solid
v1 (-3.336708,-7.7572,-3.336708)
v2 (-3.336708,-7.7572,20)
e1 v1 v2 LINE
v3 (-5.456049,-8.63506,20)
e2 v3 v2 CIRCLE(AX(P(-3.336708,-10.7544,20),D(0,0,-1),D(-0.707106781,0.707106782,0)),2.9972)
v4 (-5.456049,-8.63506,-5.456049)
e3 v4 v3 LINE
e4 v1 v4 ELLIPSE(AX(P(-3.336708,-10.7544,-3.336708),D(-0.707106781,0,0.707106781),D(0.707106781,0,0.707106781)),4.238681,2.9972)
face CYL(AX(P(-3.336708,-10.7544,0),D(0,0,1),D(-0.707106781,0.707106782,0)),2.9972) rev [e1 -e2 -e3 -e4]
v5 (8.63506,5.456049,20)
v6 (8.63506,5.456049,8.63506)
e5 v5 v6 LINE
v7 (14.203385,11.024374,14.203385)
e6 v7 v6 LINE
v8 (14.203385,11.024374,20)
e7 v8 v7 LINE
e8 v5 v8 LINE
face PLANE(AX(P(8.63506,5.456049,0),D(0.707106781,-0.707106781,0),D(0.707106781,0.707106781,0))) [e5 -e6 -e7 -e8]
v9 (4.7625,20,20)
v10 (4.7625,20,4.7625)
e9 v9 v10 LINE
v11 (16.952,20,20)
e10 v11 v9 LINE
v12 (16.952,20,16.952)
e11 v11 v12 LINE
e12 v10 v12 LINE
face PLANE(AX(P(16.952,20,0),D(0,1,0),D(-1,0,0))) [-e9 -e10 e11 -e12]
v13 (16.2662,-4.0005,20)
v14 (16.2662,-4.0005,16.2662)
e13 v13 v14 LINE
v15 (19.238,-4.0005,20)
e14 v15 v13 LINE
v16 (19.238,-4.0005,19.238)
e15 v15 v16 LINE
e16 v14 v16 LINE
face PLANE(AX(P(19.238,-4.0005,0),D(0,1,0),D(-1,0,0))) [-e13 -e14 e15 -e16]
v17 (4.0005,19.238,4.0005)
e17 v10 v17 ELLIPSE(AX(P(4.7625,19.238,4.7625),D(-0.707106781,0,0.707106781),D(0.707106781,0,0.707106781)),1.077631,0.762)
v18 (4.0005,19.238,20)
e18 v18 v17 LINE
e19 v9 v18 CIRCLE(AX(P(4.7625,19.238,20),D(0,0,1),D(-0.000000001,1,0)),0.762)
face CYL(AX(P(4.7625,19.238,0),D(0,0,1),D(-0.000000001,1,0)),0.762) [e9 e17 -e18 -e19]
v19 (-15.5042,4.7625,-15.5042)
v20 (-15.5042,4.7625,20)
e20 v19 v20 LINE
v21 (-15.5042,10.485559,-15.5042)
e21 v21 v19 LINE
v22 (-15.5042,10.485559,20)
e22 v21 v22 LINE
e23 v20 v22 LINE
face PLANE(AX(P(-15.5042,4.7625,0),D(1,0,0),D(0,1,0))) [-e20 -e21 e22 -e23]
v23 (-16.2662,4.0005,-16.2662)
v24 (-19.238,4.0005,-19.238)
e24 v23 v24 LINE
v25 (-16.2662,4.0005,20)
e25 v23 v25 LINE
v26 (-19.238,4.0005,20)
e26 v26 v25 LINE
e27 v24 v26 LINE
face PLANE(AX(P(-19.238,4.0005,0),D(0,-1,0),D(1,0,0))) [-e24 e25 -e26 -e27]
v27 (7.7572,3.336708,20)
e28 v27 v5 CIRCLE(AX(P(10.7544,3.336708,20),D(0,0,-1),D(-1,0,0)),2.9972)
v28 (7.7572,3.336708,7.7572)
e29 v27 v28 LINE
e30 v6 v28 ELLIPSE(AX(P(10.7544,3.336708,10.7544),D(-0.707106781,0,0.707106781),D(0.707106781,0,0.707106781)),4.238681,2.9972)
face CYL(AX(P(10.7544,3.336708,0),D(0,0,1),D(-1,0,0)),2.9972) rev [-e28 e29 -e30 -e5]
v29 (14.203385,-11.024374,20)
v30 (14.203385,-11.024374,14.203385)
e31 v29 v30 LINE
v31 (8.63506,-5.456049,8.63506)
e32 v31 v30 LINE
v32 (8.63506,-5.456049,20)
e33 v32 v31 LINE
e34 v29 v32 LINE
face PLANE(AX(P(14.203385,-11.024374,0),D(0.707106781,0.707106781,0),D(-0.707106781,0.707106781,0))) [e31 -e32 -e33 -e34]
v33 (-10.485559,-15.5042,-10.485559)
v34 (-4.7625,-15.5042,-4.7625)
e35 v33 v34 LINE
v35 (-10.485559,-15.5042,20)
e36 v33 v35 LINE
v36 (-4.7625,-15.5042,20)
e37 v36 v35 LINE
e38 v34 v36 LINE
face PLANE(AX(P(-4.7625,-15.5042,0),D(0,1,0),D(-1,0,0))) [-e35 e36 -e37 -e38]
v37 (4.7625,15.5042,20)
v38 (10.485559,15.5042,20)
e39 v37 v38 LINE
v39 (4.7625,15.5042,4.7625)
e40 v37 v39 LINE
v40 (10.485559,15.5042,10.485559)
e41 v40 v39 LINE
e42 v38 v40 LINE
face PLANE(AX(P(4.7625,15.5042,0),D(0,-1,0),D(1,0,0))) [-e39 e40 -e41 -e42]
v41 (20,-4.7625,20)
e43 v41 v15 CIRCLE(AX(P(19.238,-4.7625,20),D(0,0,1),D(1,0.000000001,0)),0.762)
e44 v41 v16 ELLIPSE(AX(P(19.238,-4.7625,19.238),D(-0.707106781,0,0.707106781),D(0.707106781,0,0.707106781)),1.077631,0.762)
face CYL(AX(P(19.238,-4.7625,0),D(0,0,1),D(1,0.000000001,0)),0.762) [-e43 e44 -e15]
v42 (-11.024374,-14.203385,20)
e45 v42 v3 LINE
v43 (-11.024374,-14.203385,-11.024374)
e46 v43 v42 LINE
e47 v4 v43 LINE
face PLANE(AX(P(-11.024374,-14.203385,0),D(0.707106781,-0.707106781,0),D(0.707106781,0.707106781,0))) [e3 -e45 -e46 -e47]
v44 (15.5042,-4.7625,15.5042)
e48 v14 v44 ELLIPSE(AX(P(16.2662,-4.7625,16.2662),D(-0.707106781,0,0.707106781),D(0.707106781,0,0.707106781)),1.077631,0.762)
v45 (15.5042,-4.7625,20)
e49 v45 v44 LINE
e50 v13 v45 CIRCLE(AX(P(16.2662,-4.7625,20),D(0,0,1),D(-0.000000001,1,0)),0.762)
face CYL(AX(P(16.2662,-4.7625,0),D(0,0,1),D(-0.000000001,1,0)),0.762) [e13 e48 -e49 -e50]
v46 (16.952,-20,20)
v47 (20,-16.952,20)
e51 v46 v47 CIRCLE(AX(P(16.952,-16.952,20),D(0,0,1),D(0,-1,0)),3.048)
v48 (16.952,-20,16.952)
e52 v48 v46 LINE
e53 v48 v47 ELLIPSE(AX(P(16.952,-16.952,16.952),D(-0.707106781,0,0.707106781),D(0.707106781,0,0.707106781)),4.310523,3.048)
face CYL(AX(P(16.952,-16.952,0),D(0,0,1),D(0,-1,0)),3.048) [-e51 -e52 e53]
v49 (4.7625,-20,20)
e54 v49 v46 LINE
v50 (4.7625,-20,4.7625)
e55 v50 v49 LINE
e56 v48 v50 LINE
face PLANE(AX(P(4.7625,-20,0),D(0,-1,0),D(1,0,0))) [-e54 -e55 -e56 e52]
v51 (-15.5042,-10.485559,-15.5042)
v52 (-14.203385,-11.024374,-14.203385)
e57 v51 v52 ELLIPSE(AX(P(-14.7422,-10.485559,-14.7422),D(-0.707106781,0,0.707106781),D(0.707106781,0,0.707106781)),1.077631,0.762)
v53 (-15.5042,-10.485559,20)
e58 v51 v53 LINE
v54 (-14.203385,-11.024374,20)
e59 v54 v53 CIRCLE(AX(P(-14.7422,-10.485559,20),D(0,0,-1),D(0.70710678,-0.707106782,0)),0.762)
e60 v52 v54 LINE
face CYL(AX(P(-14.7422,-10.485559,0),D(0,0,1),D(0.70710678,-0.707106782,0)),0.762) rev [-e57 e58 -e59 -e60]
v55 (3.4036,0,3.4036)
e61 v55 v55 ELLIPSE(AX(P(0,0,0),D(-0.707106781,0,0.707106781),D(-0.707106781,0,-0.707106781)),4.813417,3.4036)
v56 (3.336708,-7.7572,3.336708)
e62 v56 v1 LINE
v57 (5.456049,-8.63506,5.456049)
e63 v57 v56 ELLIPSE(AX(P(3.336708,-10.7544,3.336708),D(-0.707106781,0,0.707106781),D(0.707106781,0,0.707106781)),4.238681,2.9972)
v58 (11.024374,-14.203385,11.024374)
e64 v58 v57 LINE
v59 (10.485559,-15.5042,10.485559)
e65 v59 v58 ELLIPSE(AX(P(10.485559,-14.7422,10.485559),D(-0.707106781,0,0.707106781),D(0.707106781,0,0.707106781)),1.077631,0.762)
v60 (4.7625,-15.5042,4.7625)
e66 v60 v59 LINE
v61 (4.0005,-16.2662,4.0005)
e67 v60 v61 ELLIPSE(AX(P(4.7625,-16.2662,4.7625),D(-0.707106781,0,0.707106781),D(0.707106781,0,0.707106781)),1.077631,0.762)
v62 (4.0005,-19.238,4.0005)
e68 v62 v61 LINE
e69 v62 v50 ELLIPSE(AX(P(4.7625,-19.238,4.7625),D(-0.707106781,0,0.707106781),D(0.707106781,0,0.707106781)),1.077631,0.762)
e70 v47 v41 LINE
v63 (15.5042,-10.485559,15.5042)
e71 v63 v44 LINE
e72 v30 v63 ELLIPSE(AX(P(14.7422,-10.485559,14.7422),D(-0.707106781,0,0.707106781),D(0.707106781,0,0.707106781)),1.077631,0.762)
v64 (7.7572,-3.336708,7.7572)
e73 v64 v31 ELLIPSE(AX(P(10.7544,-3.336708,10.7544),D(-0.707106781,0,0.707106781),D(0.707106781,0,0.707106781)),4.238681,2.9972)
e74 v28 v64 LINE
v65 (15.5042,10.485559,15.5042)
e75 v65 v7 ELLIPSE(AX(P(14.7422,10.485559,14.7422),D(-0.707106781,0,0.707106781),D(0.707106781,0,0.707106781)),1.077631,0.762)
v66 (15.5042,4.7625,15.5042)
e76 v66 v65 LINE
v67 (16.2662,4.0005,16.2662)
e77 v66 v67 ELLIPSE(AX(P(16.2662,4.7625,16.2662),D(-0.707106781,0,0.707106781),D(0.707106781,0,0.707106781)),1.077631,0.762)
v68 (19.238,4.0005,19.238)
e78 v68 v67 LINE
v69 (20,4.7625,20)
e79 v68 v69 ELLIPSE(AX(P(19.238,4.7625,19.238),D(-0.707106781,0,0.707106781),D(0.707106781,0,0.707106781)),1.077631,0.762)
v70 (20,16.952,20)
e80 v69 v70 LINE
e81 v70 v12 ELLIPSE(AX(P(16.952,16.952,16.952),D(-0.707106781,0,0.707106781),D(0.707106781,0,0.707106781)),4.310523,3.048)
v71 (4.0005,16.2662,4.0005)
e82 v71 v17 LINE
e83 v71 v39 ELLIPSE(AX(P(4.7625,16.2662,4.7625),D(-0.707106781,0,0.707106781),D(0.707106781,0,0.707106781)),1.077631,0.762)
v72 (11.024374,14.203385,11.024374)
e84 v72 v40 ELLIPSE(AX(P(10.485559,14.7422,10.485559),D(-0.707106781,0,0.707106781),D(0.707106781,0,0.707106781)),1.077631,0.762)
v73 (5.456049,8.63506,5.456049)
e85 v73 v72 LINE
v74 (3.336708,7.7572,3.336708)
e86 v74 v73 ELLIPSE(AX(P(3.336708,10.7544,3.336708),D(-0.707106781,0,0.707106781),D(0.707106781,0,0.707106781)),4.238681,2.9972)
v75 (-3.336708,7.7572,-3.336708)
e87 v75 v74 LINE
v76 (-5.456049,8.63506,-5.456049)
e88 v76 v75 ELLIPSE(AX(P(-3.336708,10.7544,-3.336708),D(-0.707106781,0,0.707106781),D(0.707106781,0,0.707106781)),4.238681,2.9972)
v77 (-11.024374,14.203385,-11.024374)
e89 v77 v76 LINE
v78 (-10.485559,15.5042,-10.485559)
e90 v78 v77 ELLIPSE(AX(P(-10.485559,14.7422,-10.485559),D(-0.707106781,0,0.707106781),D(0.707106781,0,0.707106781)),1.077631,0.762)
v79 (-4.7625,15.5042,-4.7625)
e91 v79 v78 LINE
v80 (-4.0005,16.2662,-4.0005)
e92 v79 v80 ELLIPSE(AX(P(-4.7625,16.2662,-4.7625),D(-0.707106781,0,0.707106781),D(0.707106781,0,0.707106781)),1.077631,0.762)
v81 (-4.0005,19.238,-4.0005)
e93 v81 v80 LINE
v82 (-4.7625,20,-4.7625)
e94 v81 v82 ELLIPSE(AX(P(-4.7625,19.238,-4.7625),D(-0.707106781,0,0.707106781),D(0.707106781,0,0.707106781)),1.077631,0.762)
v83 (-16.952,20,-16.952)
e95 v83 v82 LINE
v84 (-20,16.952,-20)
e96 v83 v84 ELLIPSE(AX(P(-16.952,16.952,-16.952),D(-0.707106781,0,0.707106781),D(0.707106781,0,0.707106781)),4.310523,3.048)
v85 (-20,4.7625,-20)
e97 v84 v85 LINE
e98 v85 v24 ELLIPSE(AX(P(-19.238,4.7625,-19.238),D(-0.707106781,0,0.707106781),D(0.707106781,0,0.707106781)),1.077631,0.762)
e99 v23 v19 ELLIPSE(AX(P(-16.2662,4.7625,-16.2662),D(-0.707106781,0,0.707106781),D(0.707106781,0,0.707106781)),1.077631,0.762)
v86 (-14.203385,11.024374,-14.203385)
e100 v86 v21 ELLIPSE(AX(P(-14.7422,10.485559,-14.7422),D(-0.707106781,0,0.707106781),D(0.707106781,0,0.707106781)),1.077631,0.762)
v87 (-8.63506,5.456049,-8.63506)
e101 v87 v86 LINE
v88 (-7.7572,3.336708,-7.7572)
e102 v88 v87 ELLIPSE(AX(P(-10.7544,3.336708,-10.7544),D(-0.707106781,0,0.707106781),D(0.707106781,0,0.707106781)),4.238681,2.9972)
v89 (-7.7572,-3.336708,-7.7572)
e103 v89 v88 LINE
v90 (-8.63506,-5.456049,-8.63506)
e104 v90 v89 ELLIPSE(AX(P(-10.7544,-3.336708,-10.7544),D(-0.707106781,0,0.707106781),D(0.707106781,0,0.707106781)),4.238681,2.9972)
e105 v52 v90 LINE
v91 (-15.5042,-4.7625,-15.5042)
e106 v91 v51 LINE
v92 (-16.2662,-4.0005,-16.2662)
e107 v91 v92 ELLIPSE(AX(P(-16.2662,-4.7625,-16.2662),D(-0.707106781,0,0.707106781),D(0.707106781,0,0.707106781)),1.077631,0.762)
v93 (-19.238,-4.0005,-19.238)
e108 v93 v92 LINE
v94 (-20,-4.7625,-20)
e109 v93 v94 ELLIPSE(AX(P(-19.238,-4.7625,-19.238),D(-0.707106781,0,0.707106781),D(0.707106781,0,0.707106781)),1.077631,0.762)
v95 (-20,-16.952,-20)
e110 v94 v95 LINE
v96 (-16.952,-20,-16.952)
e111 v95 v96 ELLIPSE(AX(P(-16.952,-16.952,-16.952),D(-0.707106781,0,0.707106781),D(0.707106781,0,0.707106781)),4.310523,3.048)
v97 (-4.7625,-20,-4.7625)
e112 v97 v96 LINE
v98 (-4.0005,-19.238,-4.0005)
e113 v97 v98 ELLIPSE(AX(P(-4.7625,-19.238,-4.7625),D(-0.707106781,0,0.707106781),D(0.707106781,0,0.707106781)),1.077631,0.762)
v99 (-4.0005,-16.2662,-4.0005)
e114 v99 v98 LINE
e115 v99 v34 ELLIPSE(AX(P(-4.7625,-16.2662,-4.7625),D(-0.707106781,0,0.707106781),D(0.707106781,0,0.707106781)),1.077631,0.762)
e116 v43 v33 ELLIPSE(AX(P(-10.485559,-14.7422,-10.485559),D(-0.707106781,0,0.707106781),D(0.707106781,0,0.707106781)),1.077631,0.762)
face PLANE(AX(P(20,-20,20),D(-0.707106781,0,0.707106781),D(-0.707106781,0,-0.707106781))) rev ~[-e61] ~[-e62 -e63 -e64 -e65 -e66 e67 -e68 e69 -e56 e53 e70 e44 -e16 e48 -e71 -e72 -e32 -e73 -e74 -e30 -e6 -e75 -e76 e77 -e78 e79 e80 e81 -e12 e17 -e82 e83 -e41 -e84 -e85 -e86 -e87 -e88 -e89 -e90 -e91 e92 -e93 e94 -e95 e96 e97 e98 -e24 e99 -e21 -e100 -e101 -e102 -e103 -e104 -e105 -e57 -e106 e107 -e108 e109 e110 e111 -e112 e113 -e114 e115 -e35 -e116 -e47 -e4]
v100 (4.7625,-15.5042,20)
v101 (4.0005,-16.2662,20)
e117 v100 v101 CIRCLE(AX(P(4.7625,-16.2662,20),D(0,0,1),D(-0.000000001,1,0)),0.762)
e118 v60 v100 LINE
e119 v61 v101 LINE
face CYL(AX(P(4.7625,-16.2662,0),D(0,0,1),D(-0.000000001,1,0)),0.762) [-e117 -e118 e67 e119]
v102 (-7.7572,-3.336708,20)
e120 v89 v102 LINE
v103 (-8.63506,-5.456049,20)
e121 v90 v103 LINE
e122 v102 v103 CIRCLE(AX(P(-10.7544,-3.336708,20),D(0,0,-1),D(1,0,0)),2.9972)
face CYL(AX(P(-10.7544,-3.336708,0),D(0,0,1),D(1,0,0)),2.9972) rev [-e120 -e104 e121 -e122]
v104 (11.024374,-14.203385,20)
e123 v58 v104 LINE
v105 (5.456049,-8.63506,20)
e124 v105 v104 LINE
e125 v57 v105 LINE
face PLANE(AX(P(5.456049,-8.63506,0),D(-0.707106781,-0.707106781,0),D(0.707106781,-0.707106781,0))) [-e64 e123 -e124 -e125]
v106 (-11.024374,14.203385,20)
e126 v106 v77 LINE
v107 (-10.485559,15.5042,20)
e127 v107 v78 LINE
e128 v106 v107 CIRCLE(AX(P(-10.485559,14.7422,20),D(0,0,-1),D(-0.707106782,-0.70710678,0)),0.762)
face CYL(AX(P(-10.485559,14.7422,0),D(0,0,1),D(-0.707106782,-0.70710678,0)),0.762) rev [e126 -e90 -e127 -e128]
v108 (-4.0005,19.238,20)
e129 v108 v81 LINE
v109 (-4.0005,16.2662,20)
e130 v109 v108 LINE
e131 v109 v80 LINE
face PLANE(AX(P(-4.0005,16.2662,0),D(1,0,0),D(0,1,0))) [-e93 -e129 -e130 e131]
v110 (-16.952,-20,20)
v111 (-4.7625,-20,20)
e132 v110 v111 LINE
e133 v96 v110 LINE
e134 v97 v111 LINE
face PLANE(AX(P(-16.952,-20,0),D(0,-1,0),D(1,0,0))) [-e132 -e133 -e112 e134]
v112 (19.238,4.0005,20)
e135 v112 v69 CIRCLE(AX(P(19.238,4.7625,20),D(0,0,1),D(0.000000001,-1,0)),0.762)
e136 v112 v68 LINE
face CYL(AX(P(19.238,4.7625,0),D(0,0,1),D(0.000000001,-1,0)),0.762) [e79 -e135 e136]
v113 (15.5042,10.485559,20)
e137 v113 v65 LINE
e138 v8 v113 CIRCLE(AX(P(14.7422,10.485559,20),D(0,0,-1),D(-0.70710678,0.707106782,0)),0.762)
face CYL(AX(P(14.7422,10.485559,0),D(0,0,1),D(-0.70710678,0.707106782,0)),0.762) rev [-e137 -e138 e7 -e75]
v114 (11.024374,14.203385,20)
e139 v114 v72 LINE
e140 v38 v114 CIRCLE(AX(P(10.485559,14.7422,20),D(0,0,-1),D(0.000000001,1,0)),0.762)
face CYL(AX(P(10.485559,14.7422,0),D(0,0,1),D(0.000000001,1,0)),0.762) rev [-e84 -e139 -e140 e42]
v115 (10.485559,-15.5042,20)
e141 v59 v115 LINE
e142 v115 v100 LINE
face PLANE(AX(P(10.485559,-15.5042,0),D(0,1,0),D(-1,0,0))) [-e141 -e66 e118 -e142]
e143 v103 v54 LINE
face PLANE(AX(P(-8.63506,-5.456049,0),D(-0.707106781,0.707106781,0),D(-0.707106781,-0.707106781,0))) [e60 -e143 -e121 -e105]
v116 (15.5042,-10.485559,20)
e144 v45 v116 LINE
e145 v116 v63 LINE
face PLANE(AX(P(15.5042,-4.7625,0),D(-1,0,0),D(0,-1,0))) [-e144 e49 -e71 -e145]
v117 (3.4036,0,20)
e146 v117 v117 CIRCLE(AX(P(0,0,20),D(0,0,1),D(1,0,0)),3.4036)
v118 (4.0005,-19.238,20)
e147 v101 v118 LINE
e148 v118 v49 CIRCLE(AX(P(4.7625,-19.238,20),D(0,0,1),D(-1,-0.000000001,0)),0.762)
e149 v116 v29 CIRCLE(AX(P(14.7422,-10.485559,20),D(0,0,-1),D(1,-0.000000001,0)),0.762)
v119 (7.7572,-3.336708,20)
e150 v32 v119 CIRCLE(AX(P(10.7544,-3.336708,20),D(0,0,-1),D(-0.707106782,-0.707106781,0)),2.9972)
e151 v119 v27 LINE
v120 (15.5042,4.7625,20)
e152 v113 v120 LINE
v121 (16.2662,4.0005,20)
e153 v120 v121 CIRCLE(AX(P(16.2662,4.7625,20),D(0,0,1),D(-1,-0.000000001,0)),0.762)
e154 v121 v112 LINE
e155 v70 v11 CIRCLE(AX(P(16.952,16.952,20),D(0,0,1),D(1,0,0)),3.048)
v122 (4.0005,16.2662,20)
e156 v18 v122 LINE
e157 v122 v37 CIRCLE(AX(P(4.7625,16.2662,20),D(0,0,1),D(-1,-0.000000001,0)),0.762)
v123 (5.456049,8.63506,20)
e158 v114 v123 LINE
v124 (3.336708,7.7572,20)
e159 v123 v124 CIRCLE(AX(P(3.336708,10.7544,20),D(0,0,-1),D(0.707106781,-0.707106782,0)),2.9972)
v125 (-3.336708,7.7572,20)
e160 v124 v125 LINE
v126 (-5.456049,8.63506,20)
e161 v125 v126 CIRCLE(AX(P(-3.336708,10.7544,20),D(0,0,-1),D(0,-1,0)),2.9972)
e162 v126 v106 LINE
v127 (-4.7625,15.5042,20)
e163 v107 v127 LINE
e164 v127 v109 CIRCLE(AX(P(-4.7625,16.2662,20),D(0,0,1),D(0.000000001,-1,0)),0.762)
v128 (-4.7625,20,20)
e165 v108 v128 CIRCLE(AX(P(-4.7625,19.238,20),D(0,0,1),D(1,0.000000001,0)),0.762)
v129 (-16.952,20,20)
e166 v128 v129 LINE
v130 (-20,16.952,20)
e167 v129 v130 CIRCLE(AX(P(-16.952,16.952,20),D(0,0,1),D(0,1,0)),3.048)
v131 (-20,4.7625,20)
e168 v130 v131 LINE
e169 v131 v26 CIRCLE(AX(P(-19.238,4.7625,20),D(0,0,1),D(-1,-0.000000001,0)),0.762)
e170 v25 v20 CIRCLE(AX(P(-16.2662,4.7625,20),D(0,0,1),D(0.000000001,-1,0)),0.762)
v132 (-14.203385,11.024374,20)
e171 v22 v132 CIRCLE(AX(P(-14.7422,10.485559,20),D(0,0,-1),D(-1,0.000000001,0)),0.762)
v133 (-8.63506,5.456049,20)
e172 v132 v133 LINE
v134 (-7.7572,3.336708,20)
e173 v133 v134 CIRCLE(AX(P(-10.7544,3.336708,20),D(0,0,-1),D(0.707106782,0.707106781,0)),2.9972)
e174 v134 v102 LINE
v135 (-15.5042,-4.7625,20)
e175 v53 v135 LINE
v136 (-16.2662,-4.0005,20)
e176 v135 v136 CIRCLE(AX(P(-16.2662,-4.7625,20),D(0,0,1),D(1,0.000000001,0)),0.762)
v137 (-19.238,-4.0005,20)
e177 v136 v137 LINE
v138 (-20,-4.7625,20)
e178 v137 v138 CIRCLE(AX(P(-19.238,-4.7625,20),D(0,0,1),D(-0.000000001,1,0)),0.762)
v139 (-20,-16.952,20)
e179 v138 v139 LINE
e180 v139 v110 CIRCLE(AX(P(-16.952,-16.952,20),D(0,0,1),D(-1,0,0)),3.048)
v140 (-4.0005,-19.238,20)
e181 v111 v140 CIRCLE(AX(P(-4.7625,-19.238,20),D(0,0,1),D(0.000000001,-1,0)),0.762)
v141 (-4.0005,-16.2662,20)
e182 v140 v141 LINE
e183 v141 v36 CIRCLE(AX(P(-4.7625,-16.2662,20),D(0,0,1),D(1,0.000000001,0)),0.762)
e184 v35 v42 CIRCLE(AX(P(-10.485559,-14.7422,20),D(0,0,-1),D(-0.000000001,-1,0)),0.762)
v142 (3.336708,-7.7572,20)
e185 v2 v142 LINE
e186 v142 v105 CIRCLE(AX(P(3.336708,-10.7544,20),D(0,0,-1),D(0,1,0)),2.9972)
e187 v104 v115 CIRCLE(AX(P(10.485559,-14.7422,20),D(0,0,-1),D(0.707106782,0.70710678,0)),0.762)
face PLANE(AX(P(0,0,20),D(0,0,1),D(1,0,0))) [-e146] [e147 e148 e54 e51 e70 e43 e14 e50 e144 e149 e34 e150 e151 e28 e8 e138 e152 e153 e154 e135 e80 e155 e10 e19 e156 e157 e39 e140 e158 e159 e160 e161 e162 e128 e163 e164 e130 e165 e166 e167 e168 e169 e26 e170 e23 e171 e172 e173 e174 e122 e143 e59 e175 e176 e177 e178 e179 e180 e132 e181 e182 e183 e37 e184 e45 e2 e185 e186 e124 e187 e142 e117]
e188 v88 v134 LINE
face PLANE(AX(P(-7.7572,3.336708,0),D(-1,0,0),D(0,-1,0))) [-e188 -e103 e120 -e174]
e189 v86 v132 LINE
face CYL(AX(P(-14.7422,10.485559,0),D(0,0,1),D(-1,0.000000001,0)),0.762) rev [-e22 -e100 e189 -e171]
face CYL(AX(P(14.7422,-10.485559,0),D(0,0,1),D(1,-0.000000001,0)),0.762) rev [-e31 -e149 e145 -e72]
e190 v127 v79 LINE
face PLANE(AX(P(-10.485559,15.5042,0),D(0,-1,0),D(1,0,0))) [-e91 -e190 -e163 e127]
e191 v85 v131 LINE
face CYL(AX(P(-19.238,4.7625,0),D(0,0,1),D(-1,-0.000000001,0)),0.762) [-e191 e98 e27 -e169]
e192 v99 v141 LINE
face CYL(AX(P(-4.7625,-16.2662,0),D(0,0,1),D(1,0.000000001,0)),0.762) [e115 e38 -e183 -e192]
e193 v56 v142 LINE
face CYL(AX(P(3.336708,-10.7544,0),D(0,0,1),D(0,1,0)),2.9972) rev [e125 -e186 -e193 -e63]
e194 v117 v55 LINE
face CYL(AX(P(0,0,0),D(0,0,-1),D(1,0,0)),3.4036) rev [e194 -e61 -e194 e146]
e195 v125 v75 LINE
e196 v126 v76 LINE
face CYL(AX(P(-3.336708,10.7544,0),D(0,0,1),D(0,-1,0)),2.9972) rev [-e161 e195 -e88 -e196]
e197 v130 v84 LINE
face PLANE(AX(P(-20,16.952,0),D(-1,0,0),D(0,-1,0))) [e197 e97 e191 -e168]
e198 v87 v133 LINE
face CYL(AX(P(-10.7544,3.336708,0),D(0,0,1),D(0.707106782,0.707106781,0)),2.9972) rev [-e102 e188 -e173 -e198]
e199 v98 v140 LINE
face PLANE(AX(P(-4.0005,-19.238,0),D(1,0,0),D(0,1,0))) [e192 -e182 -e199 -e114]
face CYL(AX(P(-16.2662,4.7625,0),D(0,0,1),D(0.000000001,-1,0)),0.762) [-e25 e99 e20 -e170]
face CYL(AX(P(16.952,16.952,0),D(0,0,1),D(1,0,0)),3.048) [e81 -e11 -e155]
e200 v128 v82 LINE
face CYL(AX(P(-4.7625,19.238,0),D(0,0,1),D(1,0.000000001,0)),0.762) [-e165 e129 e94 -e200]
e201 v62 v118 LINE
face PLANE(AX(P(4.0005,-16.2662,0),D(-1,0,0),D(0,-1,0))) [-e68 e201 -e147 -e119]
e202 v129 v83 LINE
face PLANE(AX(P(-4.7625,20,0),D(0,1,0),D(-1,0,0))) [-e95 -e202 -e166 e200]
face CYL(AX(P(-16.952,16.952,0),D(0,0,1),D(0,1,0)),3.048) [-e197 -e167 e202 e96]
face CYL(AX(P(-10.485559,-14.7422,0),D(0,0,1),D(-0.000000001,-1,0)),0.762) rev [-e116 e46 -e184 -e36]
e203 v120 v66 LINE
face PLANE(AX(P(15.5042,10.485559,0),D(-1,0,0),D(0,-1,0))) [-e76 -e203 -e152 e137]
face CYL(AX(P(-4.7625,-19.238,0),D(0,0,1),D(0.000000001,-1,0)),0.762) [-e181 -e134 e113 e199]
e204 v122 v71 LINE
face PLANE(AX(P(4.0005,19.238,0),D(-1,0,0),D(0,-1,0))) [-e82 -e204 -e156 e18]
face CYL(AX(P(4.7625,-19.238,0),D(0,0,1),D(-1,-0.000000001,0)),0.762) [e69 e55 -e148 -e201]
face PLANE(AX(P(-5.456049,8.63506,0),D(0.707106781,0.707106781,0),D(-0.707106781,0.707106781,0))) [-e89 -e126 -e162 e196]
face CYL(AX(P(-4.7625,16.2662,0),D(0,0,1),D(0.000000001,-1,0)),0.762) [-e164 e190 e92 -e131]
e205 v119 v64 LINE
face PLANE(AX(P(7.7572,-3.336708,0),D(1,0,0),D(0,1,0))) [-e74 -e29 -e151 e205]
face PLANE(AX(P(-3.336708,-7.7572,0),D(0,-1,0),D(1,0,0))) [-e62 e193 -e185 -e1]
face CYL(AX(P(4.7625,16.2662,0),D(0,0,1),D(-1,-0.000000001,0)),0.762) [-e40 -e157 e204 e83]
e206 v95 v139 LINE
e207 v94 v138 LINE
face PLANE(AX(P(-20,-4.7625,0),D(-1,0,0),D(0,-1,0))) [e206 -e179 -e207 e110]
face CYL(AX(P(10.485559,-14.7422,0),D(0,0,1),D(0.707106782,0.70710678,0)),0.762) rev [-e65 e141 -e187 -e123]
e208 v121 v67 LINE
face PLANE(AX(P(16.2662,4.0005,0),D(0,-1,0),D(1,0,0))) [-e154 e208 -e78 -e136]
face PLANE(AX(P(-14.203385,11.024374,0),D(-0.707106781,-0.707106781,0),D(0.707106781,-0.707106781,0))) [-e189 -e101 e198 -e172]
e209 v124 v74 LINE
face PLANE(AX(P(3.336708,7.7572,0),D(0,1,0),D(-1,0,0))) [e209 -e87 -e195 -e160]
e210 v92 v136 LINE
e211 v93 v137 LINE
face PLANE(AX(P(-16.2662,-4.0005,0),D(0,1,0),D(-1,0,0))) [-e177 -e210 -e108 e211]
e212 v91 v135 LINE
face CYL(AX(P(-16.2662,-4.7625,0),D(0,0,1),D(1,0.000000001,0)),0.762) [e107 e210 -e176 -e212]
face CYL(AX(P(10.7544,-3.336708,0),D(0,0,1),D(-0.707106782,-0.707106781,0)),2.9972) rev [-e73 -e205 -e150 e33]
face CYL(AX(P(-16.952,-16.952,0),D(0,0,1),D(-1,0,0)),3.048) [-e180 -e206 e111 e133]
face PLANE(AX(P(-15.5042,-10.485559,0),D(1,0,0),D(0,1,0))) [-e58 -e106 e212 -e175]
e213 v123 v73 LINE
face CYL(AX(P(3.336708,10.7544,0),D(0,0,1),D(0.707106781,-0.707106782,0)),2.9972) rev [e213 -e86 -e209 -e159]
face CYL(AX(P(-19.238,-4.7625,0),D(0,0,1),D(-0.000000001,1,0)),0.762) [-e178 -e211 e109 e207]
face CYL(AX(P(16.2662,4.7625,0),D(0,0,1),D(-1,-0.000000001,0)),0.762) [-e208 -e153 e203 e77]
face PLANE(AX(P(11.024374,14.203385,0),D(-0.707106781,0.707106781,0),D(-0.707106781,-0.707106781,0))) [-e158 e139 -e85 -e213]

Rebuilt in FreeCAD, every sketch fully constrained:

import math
import FreeCAD as App
import Part
import Sketcher

V = App.Vector
Q = App.Units.Quantity

doc = App.newDocument("Part")
body = doc.addObject("PartDesign::Body", "Body")

# Sketch on XY plane
sketch1 = doc.addObject("Sketcher::SketchObject", "Sketch")
body.addObject(sketch1)
sketch1.AttachmentSupport = (doc.XY_Plane, [""])
sketch1.MapMode = "FlatFace"
sketch1.addGeometry(Part.LineSegment(V(-20, 16.952, 0), V(-20, 4.7625, 0)), False)
sketch1.addGeometry(Part.ArcOfCircle(Part.Circle(V(-19.238, 4.7625, 0), V(0, 0, 1), 0.762), math.radians(-180), math.radians(-90)), False)
sketch1.addGeometry(Part.LineSegment(V(-19.238, 4.0005, 0), V(-16.2662, 4.0005, 0)), False)
sketch1.addGeometry(Part.ArcOfCircle(Part.Circle(V(-16.2662, 4.7625, 0), V(0, 0, 1), 0.762), math.radians(-90), math.radians(0)), False)
sketch1.addGeometry(Part.LineSegment(V(-15.5042, 4.7625, 0), V(-15.5042, 10.485559, 0)), False)
sketch1.addGeometry(Part.ArcOfCircle(Part.Circle(V(-14.7422, 10.485559, 0), V(0, 0, 1), 0.762), math.radians(45), math.radians(180)), False)
sketch1.addGeometry(Part.LineSegment(V(-14.203385, 11.024374, 0), V(-8.63506, 5.456049, 0)), False)
sketch1.addGeometry(Part.ArcOfCircle(Part.Circle(V(-10.7544, 3.336708, 0), V(0, 0, 1), 2.9972), math.radians(0), math.radians(45)), False)
sketch1.addGeometry(Part.LineSegment(V(-7.7572, 3.336708, 0), V(-7.7572, -3.336708, 0)), False)
sketch1.addGeometry(Part.ArcOfCircle(Part.Circle(V(-10.7544, -3.336708, 0), V(0, 0, 1), 2.9972), math.radians(-45), math.radians(0)), False)
sketch1.addGeometry(Part.LineSegment(V(-8.63506, -5.456049, 0), V(-14.203385, -11.024374, 0)), False)
sketch1.addGeometry(Part.ArcOfCircle(Part.Circle(V(-14.7422, -10.485559, 0), V(0, 0, 1), 0.762), math.radians(-180), math.radians(-45)), False)
sketch1.addGeometry(Part.LineSegment(V(-15.5042, -10.485559, 0), V(-15.5042, -4.7625, 0)), False)
sketch1.addGeometry(Part.ArcOfCircle(Part.Circle(V(-16.2662, -4.7625, 0), V(0, 0, 1), 0.762), math.radians(0), math.radians(90)), False)
sketch1.addGeometry(Part.LineSegment(V(-16.2662, -4.0005, 0), V(-19.238, -4.0005, 0)), False)
sketch1.addGeometry(Part.ArcOfCircle(Part.Circle(V(-19.238, -4.7625, 0), V(0, 0, 1), 0.762), math.radians(90), math.radians(180)), False)
sketch1.addGeometry(Part.LineSegment(V(-20, -4.7625, 0), V(-20, -16.952, 0)), False)
sketch1.addGeometry(Part.ArcOfCircle(Part.Circle(V(-16.952, -16.952, 0), V(0, 0, 1), 3.048), math.radians(180), math.radians(270)), False)
sketch1.addGeometry(Part.LineSegment(V(-16.952, -20, 0), V(-4.7625, -20, 0)), False)
sketch1.addGeometry(Part.ArcOfCircle(Part.Circle(V(-4.7625, -19.238, 0), V(0, 0, 1), 0.762), math.radians(-90), math.radians(0)), False)
sketch1.addGeometry(Part.LineSegment(V(-4.0005, -19.238, 0), V(-4.0005, -16.2662, 0)), False)
sketch1.addGeometry(Part.ArcOfCircle(Part.Circle(V(-4.7625, -16.2662, 0), V(0, 0, 1), 0.762), math.radians(0), math.radians(90)), False)
sketch1.addGeometry(Part.LineSegment(V(-4.7625, -15.5042, 0), V(-10.485559, -15.5042, 0)), False)
sketch1.addGeometry(Part.ArcOfCircle(Part.Circle(V(-10.485559, -14.7422, 0), V(0, 0, 1), 0.762), math.radians(135), math.radians(270)), False)
sketch1.addGeometry(Part.LineSegment(V(-11.024374, -14.203385, 0), V(-5.456049, -8.63506, 0)), False)
sketch1.addGeometry(Part.ArcOfCircle(Part.Circle(V(-3.336708, -10.7544, 0), V(0, 0, 1), 2.9972), math.radians(90), math.radians(135)), False)
sketch1.addGeometry(Part.LineSegment(V(-3.336708, -7.7572, 0), V(3.336708, -7.7572, 0)), False)
sketch1.addGeometry(Part.ArcOfCircle(Part.Circle(V(3.336708, -10.7544, 0), V(0, 0, 1), 2.9972), math.radians(45), math.radians(90)), False)
sketch1.addGeometry(Part.LineSegment(V(5.456049, -8.63506, 0), V(11.024374, -14.203385, 0)), False)
sketch1.addGeometry(Part.ArcOfCircle(Part.Circle(V(10.485559, -14.7422, 0), V(0, 0, 1), 0.762), math.radians(-90), math.radians(45)), False)
sketch1.addGeometry(Part.LineSegment(V(10.485559, -15.5042, 0), V(4.7625, -15.5042, 0)), False)
sketch1.addGeometry(Part.ArcOfCircle(Part.Circle(V(4.7625, -16.2662, 0), V(0, 0, 1), 0.762), math.radians(90), math.radians(180)), False)
sketch1.addGeometry(Part.LineSegment(V(4.0005, -16.2662, 0), V(4.0005, -19.238, 0)), False)
sketch1.addGeometry(Part.ArcOfCircle(Part.Circle(V(4.7625, -19.238, 0), V(0, 0, 1), 0.762), math.radians(-180), math.radians(-90)), False)
sketch1.addGeometry(Part.LineSegment(V(4.7625, -20, 0), V(16.952, -20, 0)), False)
sketch1.addGeometry(Part.ArcOfCircle(Part.Circle(V(16.952, -16.952, 0), V(0, 0, 1), 3.048), math.radians(-90), math.radians(0)), False)
sketch1.addGeometry(Part.LineSegment(V(20, -16.952, 0), V(20, -4.7625, 0)), False)
sketch1.addGeometry(Part.ArcOfCircle(Part.Circle(V(19.238, -4.7625, 0), V(0, 0, 1), 0.762), math.radians(0), math.radians(90)), False)
sketch1.addGeometry(Part.LineSegment(V(19.238, -4.0005, 0), V(16.2662, -4.0005, 0)), False)
sketch1.addGeometry(Part.ArcOfCircle(Part.Circle(V(16.2662, -4.7625, 0), V(0, 0, 1), 0.762), math.radians(90), math.radians(180)), False)
sketch1.addGeometry(Part.LineSegment(V(15.5042, -4.7625, 0), V(15.5042, -10.485559, 0)), False)
sketch1.addGeometry(Part.ArcOfCircle(Part.Circle(V(14.7422, -10.485559, 0), V(0, 0, 1), 0.762), math.radians(-135), math.radians(0)), False)
sketch1.addGeometry(Part.LineSegment(V(14.203385, -11.024374, 0), V(8.63506, -5.456049, 0)), False)
sketch1.addGeometry(Part.ArcOfCircle(Part.Circle(V(10.7544, -3.336708, 0), V(0, 0, 1), 2.9972), math.radians(-180), math.radians(-135)), False)
sketch1.addGeometry(Part.LineSegment(V(7.7572, -3.336708, 0), V(7.7572, 3.336708, 0)), False)
sketch1.addGeometry(Part.ArcOfCircle(Part.Circle(V(10.7544, 3.336708, 0), V(0, 0, 1), 2.9972), math.radians(135), math.radians(180)), False)
sketch1.addGeometry(Part.LineSegment(V(8.63506, 5.456049, 0), V(14.203385, 11.024374, 0)), False)
sketch1.addGeometry(Part.ArcOfCircle(Part.Circle(V(14.7422, 10.485559, 0), V(0, 0, 1), 0.762), math.radians(0), math.radians(135)), False)
sketch1.addGeometry(Part.LineSegment(V(15.5042, 10.485559, 0), V(15.5042, 4.7625, 0)), False)
sketch1.addGeometry(Part.ArcOfCircle(Part.Circle(V(16.2662, 4.7625, 0), V(0, 0, 1), 0.762), math.radians(-180), math.radians(-90)), False)
sketch1.addGeometry(Part.LineSegment(V(16.2662, 4.0005, 0), V(19.238, 4.0005, 0)), False)
sketch1.addGeometry(Part.ArcOfCircle(Part.Circle(V(19.238, 4.7625, 0), V(0, 0, 1), 0.762), math.radians(-90), math.radians(0)), False)
sketch1.addGeometry(Part.LineSegment(V(20, 4.7625, 0), V(20, 16.952, 0)), False)
sketch1.addGeometry(Part.ArcOfCircle(Part.Circle(V(16.952, 16.952, 0), V(0, 0, 1), 3.048), math.radians(0), math.radians(90)), False)
sketch1.addGeometry(Part.LineSegment(V(16.952, 20, 0), V(4.7625, 20, 0)), False)
sketch1.addGeometry(Part.ArcOfCircle(Part.Circle(V(4.7625, 19.238, 0), V(0, 0, 1), 0.762), math.radians(90), math.radians(180)), False)
sketch1.addGeometry(Part.LineSegment(V(4.0005, 19.238, 0), V(4.0005, 16.2662, 0)), False)
sketch1.addGeometry(Part.ArcOfCircle(Part.Circle(V(4.7625, 16.2662, 0), V(0, 0, 1), 0.762), math.radians(-180), math.radians(-90)), False)
sketch1.addGeometry(Part.LineSegment(V(4.7625, 15.5042, 0), V(10.485559, 15.5042, 0)), False)
sketch1.addGeometry(Part.ArcOfCircle(Part.Circle(V(10.485559, 14.7422, 0), V(0, 0, 1), 0.762), math.radians(-45), math.radians(90)), False)
sketch1.addGeometry(Part.LineSegment(V(11.024374, 14.203385, 0), V(5.456049, 8.63506, 0)), False)
sketch1.addGeometry(Part.ArcOfCircle(Part.Circle(V(3.336708, 10.7544, 0), V(0, 0, 1), 2.9972), math.radians(-90), math.radians(-45)), False)
sketch1.addGeometry(Part.LineSegment(V(3.336708, 7.7572, 0), V(-3.336708, 7.7572, 0)), False)
sketch1.addGeometry(Part.ArcOfCircle(Part.Circle(V(-3.336708, 10.7544, 0), V(0, 0, 1), 2.9972), math.radians(-135), math.radians(-90)), False)
sketch1.addGeometry(Part.LineSegment(V(-5.456049, 8.63506, 0), V(-11.024374, 14.203385, 0)), False)
sketch1.addGeometry(Part.ArcOfCircle(Part.Circle(V(-10.485559, 14.7422, 0), V(0, 0, 1), 0.762), math.radians(90), math.radians(225)), False)
sketch1.addGeometry(Part.LineSegment(V(-10.485559, 15.5042, 0), V(-4.7625, 15.5042, 0)), False)
sketch1.addGeometry(Part.ArcOfCircle(Part.Circle(V(-4.7625, 16.2662, 0), V(0, 0, 1), 0.762), math.radians(-90), math.radians(0)), False)
sketch1.addGeometry(Part.LineSegment(V(-4.0005, 16.2662, 0), V(-4.0005, 19.238, 0)), False)
sketch1.addGeometry(Part.ArcOfCircle(Part.Circle(V(-4.7625, 19.238, 0), V(0, 0, 1), 0.762), math.radians(0), math.radians(90)), False)
sketch1.addGeometry(Part.LineSegment(V(-4.7625, 20, 0), V(-16.952, 20, 0)), False)
sketch1.addGeometry(Part.ArcOfCircle(Part.Circle(V(-16.952, 16.952, 0), V(0, 0, 1), 3.048), math.radians(90), math.radians(180)), False)
sketch1.addGeometry(Part.Circle(V(0, 0, 0), V(0, 0, 1), 3.4036), False)
sketch1.addConstraint(Sketcher.Constraint("Tangent", 0, 2, 1, 1))
sketch1.addConstraint(Sketcher.Constraint("Tangent", 1, 2, 2, 1))
sketch1.addConstraint(Sketcher.Constraint("Tangent", 2, 2, 3, 1))
sketch1.addConstraint(Sketcher.Constraint("Tangent", 3, 2, 4, 1))
sketch1.addConstraint(Sketcher.Constraint("Tangent", 4, 2, 5, 2))
sketch1.addConstraint(Sketcher.Constraint("Tangent", 5, 1, 6, 1))
sketch1.addConstraint(Sketcher.Constraint("Tangent", 6, 2, 7, 2))
sketch1.addConstraint(Sketcher.Constraint("Tangent", 7, 1, 8, 1))
sketch1.addConstraint(Sketcher.Constraint("Tangent", 8, 2, 9, 2))
sketch1.addConstraint(Sketcher.Constraint("Tangent", 9, 1, 10, 1))
sketch1.addConstraint(Sketcher.Constraint("Tangent", 10, 2, 11, 2))
sketch1.addConstraint(Sketcher.Constraint("Tangent", 11, 1, 12, 1))
sketch1.addConstraint(Sketcher.Constraint("Tangent", 12, 2, 13, 1))
sketch1.addConstraint(Sketcher.Constraint("Tangent", 13, 2, 14, 1))
sketch1.addConstraint(Sketcher.Constraint("Tangent", 14, 2, 15, 1))
sketch1.addConstraint(Sketcher.Constraint("Tangent", 15, 2, 16, 1))
sketch1.addConstraint(Sketcher.Constraint("Tangent", 16, 2, 17, 1))
sketch1.addConstraint(Sketcher.Constraint("Tangent", 17, 2, 18, 1))
sketch1.addConstraint(Sketcher.Constraint("Tangent", 18, 2, 19, 1))
sketch1.addConstraint(Sketcher.Constraint("Tangent", 19, 2, 20, 1))
sketch1.addConstraint(Sketcher.Constraint("Tangent", 20, 2, 21, 1))
sketch1.addConstraint(Sketcher.Constraint("Tangent", 21, 2, 22, 1))
sketch1.addConstraint(Sketcher.Constraint("Tangent", 22, 2, 23, 2))
sketch1.addConstraint(Sketcher.Constraint("Tangent", 23, 1, 24, 1))
sketch1.addConstraint(Sketcher.Constraint("Tangent", 24, 2, 25, 2))
sketch1.addConstraint(Sketcher.Constraint("Tangent", 25, 1, 26, 1))
sketch1.addConstraint(Sketcher.Constraint("Tangent", 26, 2, 27, 2))
sketch1.addConstraint(Sketcher.Constraint("Tangent", 27, 1, 28, 1))
sketch1.addConstraint(Sketcher.Constraint("Tangent", 28, 2, 29, 2))
sketch1.addConstraint(Sketcher.Constraint("Tangent", 29, 1, 30, 1))
sketch1.addConstraint(Sketcher.Constraint("Tangent", 30, 2, 31, 1))
sketch1.addConstraint(Sketcher.Constraint("Tangent", 31, 2, 32, 1))
sketch1.addConstraint(Sketcher.Constraint("Tangent", 32, 2, 33, 1))
sketch1.addConstraint(Sketcher.Constraint("Tangent", 33, 2, 34, 1))
sketch1.addConstraint(Sketcher.Constraint("Tangent", 34, 2, 35, 1))
sketch1.addConstraint(Sketcher.Constraint("Tangent", 35, 2, 36, 1))
sketch1.addConstraint(Sketcher.Constraint("Tangent", 36, 2, 37, 1))
sketch1.addConstraint(Sketcher.Constraint("Tangent", 37, 2, 38, 1))
sketch1.addConstraint(Sketcher.Constraint("Tangent", 38, 2, 39, 1))
sketch1.addConstraint(Sketcher.Constraint("Tangent", 39, 2, 40, 1))
sketch1.addConstraint(Sketcher.Constraint("Tangent", 40, 2, 41, 2))
sketch1.addConstraint(Sketcher.Constraint("Tangent", 41, 1, 42, 1))
sketch1.addConstraint(Sketcher.Constraint("Tangent", 42, 2, 43, 2))
sketch1.addConstraint(Sketcher.Constraint("Tangent", 43, 1, 44, 1))
sketch1.addConstraint(Sketcher.Constraint("Tangent", 44, 2, 45, 2))
sketch1.addConstraint(Sketcher.Constraint("Tangent", 45, 1, 46, 1))
sketch1.addConstraint(Sketcher.Constraint("Tangent", 46, 2, 47, 2))
sketch1.addConstraint(Sketcher.Constraint("Tangent", 47, 1, 48, 1))
sketch1.addConstraint(Sketcher.Constraint("Tangent", 48, 2, 49, 1))
sketch1.addConstraint(Sketcher.Constraint("Tangent", 49, 2, 50, 1))
sketch1.addConstraint(Sketcher.Constraint("Tangent", 50, 2, 51, 1))
sketch1.addConstraint(Sketcher.Constraint("Tangent", 51, 2, 52, 1))
sketch1.addConstraint(Sketcher.Constraint("Tangent", 52, 2, 53, 1))
sketch1.addConstraint(Sketcher.Constraint("Tangent", 53, 2, 54, 1))
sketch1.addConstraint(Sketcher.Constraint("Tangent", 54, 2, 55, 1))
sketch1.addConstraint(Sketcher.Constraint("Tangent", 55, 2, 56, 1))
sketch1.addConstraint(Sketcher.Constraint("Tangent", 56, 2, 57, 1))
sketch1.addConstraint(Sketcher.Constraint("Tangent", 57, 2, 58, 1))
sketch1.addConstraint(Sketcher.Constraint("Tangent", 58, 2, 59, 2))
sketch1.addConstraint(Sketcher.Constraint("Tangent", 59, 1, 60, 1))
sketch1.addConstraint(Sketcher.Constraint("Tangent", 60, 2, 61, 2))
sketch1.addConstraint(Sketcher.Constraint("Tangent", 61, 1, 62, 1))
sketch1.addConstraint(Sketcher.Constraint("Tangent", 62, 2, 63, 2))
sketch1.addConstraint(Sketcher.Constraint("Tangent", 63, 1, 64, 1))
sketch1.addConstraint(Sketcher.Constraint("Tangent", 64, 2, 65, 2))
sketch1.addConstraint(Sketcher.Constraint("Tangent", 65, 1, 66, 1))
sketch1.addConstraint(Sketcher.Constraint("Tangent", 66, 2, 67, 1))
sketch1.addConstraint(Sketcher.Constraint("Tangent", 67, 2, 68, 1))
sketch1.addConstraint(Sketcher.Constraint("Tangent", 68, 2, 69, 1))
sketch1.addConstraint(Sketcher.Constraint("Tangent", 69, 2, 70, 1))
sketch1.addConstraint(Sketcher.Constraint("Tangent", 70, 2, 71, 1))
sketch1.addConstraint(Sketcher.Constraint("Tangent", 71, 2, 0, 1))
sketch1.addConstraint(Sketcher.Constraint("Vertical", 0))
sketch1.addConstraint(Sketcher.Constraint("Horizontal", 2))
sketch1.addConstraint(Sketcher.Constraint("Vertical", 4))
sketch1.addConstraint(Sketcher.Constraint("Vertical", 8))
sketch1.addConstraint(Sketcher.Constraint("Vertical", 12))
sketch1.addConstraint(Sketcher.Constraint("Horizontal", 14))
sketch1.addConstraint(Sketcher.Constraint("Vertical", 16))
sketch1.addConstraint(Sketcher.Constraint("Horizontal", 18))
sketch1.addConstraint(Sketcher.Constraint("Vertical", 20))
sketch1.addConstraint(Sketcher.Constraint("Horizontal", 22))
sketch1.addConstraint(Sketcher.Constraint("Horizontal", 26))
sketch1.addConstraint(Sketcher.Constraint("Horizontal", 30))
sketch1.addConstraint(Sketcher.Constraint("Vertical", 32))
sketch1.addConstraint(Sketcher.Constraint("Horizontal", 34))
sketch1.addConstraint(Sketcher.Constraint("Vertical", 36))
sketch1.addConstraint(Sketcher.Constraint("Horizontal", 38))
sketch1.addConstraint(Sketcher.Constraint("Vertical", 40))
sketch1.addConstraint(Sketcher.Constraint("Vertical", 44))
sketch1.addConstraint(Sketcher.Constraint("Vertical", 48))
sketch1.addConstraint(Sketcher.Constraint("Horizontal", 50))
sketch1.addConstraint(Sketcher.Constraint("Vertical", 52))
sketch1.addConstraint(Sketcher.Constraint("Horizontal", 54))
sketch1.addConstraint(Sketcher.Constraint("Vertical", 56))
sketch1.addConstraint(Sketcher.Constraint("Horizontal", 58))
sketch1.addConstraint(Sketcher.Constraint("Horizontal", 62))
sketch1.addConstraint(Sketcher.Constraint("Horizontal", 66))
sketch1.addConstraint(Sketcher.Constraint("Vertical", 68))
sketch1.addConstraint(Sketcher.Constraint("Horizontal", 70))
sketch1.addConstraint(Sketcher.Constraint("Coincident", 72, 3, -1, 1))
sketch1.addConstraint(Sketcher.Constraint("Equal", 1, 3))
sketch1.addConstraint(Sketcher.Constraint("Equal", 3, 5))
sketch1.addConstraint(Sketcher.Constraint("Equal", 7, 9))
sketch1.addConstraint(Sketcher.Constraint("Equal", 5, 11))
sketch1.addConstraint(Sketcher.Constraint("Equal", 11, 13))
sketch1.addConstraint(Sketcher.Constraint("Equal", 13, 15))
sketch1.addConstraint(Sketcher.Constraint("Equal", 15, 19))
sketch1.addConstraint(Sketcher.Constraint("Equal", 19, 21))
sketch1.addConstraint(Sketcher.Constraint("Equal", 21, 23))
sketch1.addConstraint(Sketcher.Constraint("Equal", 9, 25))
sketch1.addConstraint(Sketcher.Constraint("Equal", 25, 27))
sketch1.addConstraint(Sketcher.Constraint("Equal", 23, 29))
sketch1.addConstraint(Sketcher.Constraint("Equal", 29, 31))
sketch1.addConstraint(Sketcher.Constraint("Equal", 31, 33))
sketch1.addConstraint(Sketcher.Constraint("Equal", 17, 35))
sketch1.addConstraint(Sketcher.Constraint("Equal", 33, 37))
sketch1.addConstraint(Sketcher.Constraint("Equal", 37, 39))
sketch1.addConstraint(Sketcher.Constraint("Equal", 39, 41))
sketch1.addConstraint(Sketcher.Constraint("Equal", 27, 43))
sketch1.addConstraint(Sketcher.Constraint("Equal", 43, 45))
sketch1.addConstraint(Sketcher.Constraint("Equal", 41, 47))
sketch1.addConstraint(Sketcher.Constraint("Equal", 47, 49))
sketch1.addConstraint(Sketcher.Constraint("Equal", 49, 51))
sketch1.addConstraint(Sketcher.Constraint("Equal", 35, 53))
sketch1.addConstraint(Sketcher.Constraint("Equal", 51, 55))
sketch1.addConstraint(Sketcher.Constraint("Equal", 55, 57))
sketch1.addConstraint(Sketcher.Constraint("Equal", 57, 59))
sketch1.addConstraint(Sketcher.Constraint("Equal", 45, 61))
sketch1.addConstraint(Sketcher.Constraint("Equal", 61, 63))
sketch1.addConstraint(Sketcher.Constraint("Equal", 59, 65))
sketch1.addConstraint(Sketcher.Constraint("Equal", 65, 67))
sketch1.addConstraint(Sketcher.Constraint("Equal", 67, 69))
sketch1.addConstraint(Sketcher.Constraint("Equal", 53, 71))
sketch1.addConstraint(Sketcher.Constraint("Symmetric", 1, 3, 37, 3, -1, 1))
sketch1.addConstraint(Sketcher.Constraint("Symmetric", 5, 3, 41, 3, -1, 1))
sketch1.addConstraint(Sketcher.Constraint("Symmetric", 7, 3, 43, 3, -1, 1))
sketch1.addConstraint(Sketcher.Constraint("Symmetric", 11, 3, 47, 3, -1, 1))
sketch1.addConstraint(Sketcher.Constraint("Symmetric", 15, 3, 51, 3, -1, 1))
sketch1.addConstraint(Sketcher.Constraint("Symmetric", 19, 3, 55, 3, -1, 1))
sketch1.addConstraint(Sketcher.Constraint("Symmetric", 23, 3, 59, 3, -1, 1))
sketch1.addConstraint(Sketcher.Constraint("Symmetric", 25, 3, 61, 3, -1, 1))
sketch1.addConstraint(Sketcher.Constraint("Symmetric", 29, 3, 65, 3, -1, 1))
sketch1.addConstraint(Sketcher.Constraint("Symmetric", 33, 3, 69, 3, -1, 1))
sketch1.addConstraint(Sketcher.Constraint("Symmetric", 23, 3, 29, 3, -2))
sketch1.addConstraint(Sketcher.Constraint("Symmetric", 19, 3, 33, 3, -2))
sketch1.addConstraint(Sketcher.Constraint("Symmetric", 15, 3, 37, 3, -2))
sketch1.addConstraint(Sketcher.Constraint("Symmetric", 11, 3, 41, 3, -2))
sketch1.addConstraint(Sketcher.Constraint("Perpendicular", 6, 10))
sketch1.addConstraint(Sketcher.Constraint("Parallel", 10, 24))
sketch1.addConstraint(Sketcher.Constraint("Perpendicular", 24, 28))
sketch1.addConstraint(Sketcher.Constraint("Perpendicular", 42, 46))
sketch1.addConstraint(Sketcher.Constraint("Perpendicular", 60, 64))
sketch1.addConstraint(Sketcher.Constraint("Horizontal", 9, 3, 43, 3))
sketch1.addConstraint(Sketcher.Constraint("Equal", 70, 0))
sketch1.addConstraint(Sketcher.Constraint("Equal", 66, 4))
sketch1.addConstraint(Sketcher.Constraint("Equal", 62, 8))
sketch1.addConstraint(Sketcher.Constraint("Equal", 50, 20))
sketch1.addConstraint(Sketcher.Constraint("Equal", 10, 24))
sketch1.addConstraint(Sketcher.Constraint("Radius", 1, Q("0.03 in")))
sketch1.addConstraint(Sketcher.Constraint("Radius", 17, Q("0.12 in")))
sketch1.addConstraint(Sketcher.Constraint("Diameter", 72, Q("0.268 in")))
sketch1.addConstraint(Sketcher.Constraint("Radius", 7, Q("0.118 in")))
sketch1.addConstraint(Sketcher.Constraint("DistanceX", 2, 1, 2, 2, Q("0.117 in")))
sketch1.addConstraint(Sketcher.Constraint("DistanceY", -1, 1, 1, 3, Q("0.1875 in")))
sketch1.addConstraint(Sketcher.Constraint("DistanceX", 18, 1, 18, 2, Q("12.1895 mm")))
sketch1.addConstraint(Sketcher.Constraint("Distance", 6, Q("7.874801 mm")))
sketch1.addConstraint(Sketcher.Constraint("DistanceX", 22, 2, 22, 1, Q("5.723059 mm")))
pad1 = doc.addObject("PartDesign::Pad", "Pad")
body.addObject(pad1)
pad1.Profile = sketch1
pad1.Length = 40
pad1.Midplane = True

# Sketch on XZ plane
sketch2 = doc.addObject("Sketcher::SketchObject", "Sketch001")
body.addObject(sketch2)
sketch2.AttachmentSupport = (doc.XZ_Plane, [""])
sketch2.MapMode = "FlatFace"
sketch2.AttachmentOffset = App.Placement(V(0, 0, 20), App.Rotation())
sketch2.addGeometry(Part.LineSegment(V(20, 20, 0), V(-20, -20, 0)), False)
sketch2.addGeometry(Part.LineSegment(V(-20, -20, 0), V(20, -20, 0)), False)
sketch2.addGeometry(Part.LineSegment(V(20, -20, 0), V(20, 20, 0)), False)
sketch2.addConstraint(Sketcher.Constraint("Coincident", 0, 2, 1, 1))
sketch2.addConstraint(Sketcher.Constraint("Coincident", 1, 2, 2, 1))
sketch2.addConstraint(Sketcher.Constraint("Coincident", 2, 2, 0, 1))
sketch2.addConstraint(Sketcher.Constraint("Horizontal", 1))
sketch2.addConstraint(Sketcher.Constraint("Vertical", 2))
sketch2.addConstraint(Sketcher.Constraint("Symmetric", 0, 2, 2, 2, -1, 1))
sketch2.addConstraint(Sketcher.Constraint("Equal", 1, 2))
sketch2.addConstraint(Sketcher.Constraint("DistanceX", 1, 1, 1, 2, Q("40 mm")))
pocket1 = doc.addObject("PartDesign::Pocket", "Pocket")
body.addObject(pocket1)
pocket1.Profile = sketch2
pocket1.Type = "ThroughAll"

doc.recompute()
